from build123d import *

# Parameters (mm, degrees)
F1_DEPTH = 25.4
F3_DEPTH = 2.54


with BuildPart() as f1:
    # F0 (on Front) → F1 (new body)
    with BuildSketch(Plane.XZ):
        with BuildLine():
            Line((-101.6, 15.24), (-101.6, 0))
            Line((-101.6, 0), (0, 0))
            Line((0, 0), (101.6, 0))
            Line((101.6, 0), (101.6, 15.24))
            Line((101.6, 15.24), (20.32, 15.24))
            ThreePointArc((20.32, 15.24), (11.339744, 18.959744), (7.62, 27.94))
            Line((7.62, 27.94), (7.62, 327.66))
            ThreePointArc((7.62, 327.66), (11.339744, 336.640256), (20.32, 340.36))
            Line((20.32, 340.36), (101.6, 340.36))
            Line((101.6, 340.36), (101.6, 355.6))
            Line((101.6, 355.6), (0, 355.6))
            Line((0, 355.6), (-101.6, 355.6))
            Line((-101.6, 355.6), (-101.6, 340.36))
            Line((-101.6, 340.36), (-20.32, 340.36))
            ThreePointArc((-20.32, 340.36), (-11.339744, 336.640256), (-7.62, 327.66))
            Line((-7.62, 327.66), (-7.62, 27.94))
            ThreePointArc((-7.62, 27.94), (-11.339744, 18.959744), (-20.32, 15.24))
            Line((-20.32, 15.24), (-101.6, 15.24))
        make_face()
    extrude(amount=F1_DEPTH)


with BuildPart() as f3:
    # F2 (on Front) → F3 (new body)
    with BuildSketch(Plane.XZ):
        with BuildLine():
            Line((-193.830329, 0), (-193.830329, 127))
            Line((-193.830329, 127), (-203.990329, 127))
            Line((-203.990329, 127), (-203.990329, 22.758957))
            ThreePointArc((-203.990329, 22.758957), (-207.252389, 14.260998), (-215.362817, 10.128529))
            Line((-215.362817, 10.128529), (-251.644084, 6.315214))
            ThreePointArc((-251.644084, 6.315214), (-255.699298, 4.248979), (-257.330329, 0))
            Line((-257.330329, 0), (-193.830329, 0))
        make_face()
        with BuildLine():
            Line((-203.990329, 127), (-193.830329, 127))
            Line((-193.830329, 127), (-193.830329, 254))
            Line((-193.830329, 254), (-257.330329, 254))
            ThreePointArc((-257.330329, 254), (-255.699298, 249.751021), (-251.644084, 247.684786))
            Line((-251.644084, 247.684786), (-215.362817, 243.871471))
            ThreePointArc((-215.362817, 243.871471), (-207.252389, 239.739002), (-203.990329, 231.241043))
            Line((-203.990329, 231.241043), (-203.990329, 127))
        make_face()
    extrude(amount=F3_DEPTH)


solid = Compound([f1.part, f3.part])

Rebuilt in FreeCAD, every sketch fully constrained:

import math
import FreeCAD as App
import Part
import Sketcher
Q = App.Units.Quantity

doc = App.newDocument("Part")
params = doc.addObject("Spreadsheet::Sheet", "Params")
for row, (alias, value) in enumerate([
    ("sketch1_radius", "0.5 in"),
    ("sketch1_width", "8 in"),
    ("sketch1_width2", "3.2 in"),
    ("sketch1_height", "0.6 in"),
    ("sketch1_height2", "11.8 in"),
    ("pad1_length", "1 in"),
    ("sketch2_radius", "0.4999999 in"),
    ("sketch2_height", "10 in"),
    ("sketch2_radius2", "0.2500001 in"),
    ("sketch2_width", "2.5 in"),
    ("pad2_length", "0.1 in"),
], start=1):
    params.set(f"A{row}", alias)
    params.set(f"B{row}", "=" + value)
    params.setAlias(f"B{row}", alias)

body = doc.addObject("PartDesign::Body", "Body")

sketch1 = doc.addObject("Sketcher::SketchObject", "Sketch")
body.addObject(sketch1)
sketch1.AttachmentSupport = (doc.XZ_Plane, [""])
sketch1.MapMode = "FlatFace"
sketch1.addGeometry(Part.LineSegment(App.Vector(-102, 15, 0), App.Vector(-102, 0, 0)), False)
sketch1.addGeometry(Part.LineSegment(App.Vector(-102, 0, 0), App.Vector(102, 0, 0)), False)
sketch1.addGeometry(Part.LineSegment(App.Vector(102, 0, 0), App.Vector(102, 15, 0)), False)
sketch1.addGeometry(Part.LineSegment(App.Vector(102, 15, 0), App.Vector(20, 15, 0)), False)
sketch1.addGeometry(Part.ArcOfCircle(Part.Circle(App.Vector(20, 28, 0), App.Vector(0, 0, 1), 13), math.radians(-180), math.radians(-90)), False)
sketch1.addGeometry(Part.LineSegment(App.Vector(8, 28, 0), App.Vector(8, 328, 0)), False)
sketch1.addGeometry(Part.ArcOfCircle(Part.Circle(App.Vector(20, 328, 0), App.Vector(0, 0, 1), 13), math.radians(90), math.radians(180)), False)
sketch1.addGeometry(Part.LineSegment(App.Vector(20, 340, 0), App.Vector(102, 340, 0)), False)
sketch1.addGeometry(Part.LineSegment(App.Vector(102, 340, 0), App.Vector(102, 356, 0)), False)
sketch1.addGeometry(Part.LineSegment(App.Vector(102, 356, 0), App.Vector(-102, 356, 0)), False)
sketch1.addGeometry(Part.LineSegment(App.Vector(-102, 356, 0), App.Vector(-102, 340, 0)), False)
sketch1.addGeometry(Part.LineSegment(App.Vector(-102, 340, 0), App.Vector(-20, 340, 0)), False)
sketch1.addGeometry(Part.ArcOfCircle(Part.Circle(App.Vector(-20, 328, 0), App.Vector(0, 0, 1), 13), math.radians(0), math.radians(90)), False)
sketch1.addGeometry(Part.LineSegment(App.Vector(-8, 328, 0), App.Vector(-8, 28, 0)), False)
sketch1.addGeometry(Part.ArcOfCircle(Part.Circle(App.Vector(-20, 28, 0), App.Vector(0, 0, 1), 13), math.radians(-90), math.radians(0)), False)
sketch1.addGeometry(Part.LineSegment(App.Vector(-20, 15, 0), App.Vector(-102, 15, 0)), False)
sketch1.addConstraint(Sketcher.Constraint("Coincident", 0, 2, 1, 1))
sketch1.addConstraint(Sketcher.Constraint("Coincident", 1, 2, 2, 1))
sketch1.addConstraint(Sketcher.Constraint("Coincident", 2, 2, 3, 1))
sketch1.addConstraint(Sketcher.Constraint("Tangent", 3, 2, 4, 2))
sketch1.addConstraint(Sketcher.Constraint("Tangent", 4, 1, 5, 1))
sketch1.addConstraint(Sketcher.Constraint("Tangent", 5, 2, 6, 2))
sketch1.addConstraint(Sketcher.Constraint("Tangent", 6, 1, 7, 1))
sketch1.addConstraint(Sketcher.Constraint("Coincident", 7, 2, 8, 1))
sketch1.addConstraint(Sketcher.Constraint("Coincident", 8, 2, 9, 1))
sketch1.addConstraint(Sketcher.Constraint("Coincident", 9, 2, 10, 1))
sketch1.addConstraint(Sketcher.Constraint("Coincident", 10, 2, 11, 1))
sketch1.addConstraint(Sketcher.Constraint("Tangent", 11, 2, 12, 2))
sketch1.addConstraint(Sketcher.Constraint("Tangent", 12, 1, 13, 1))
sketch1.addConstraint(Sketcher.Constraint("Tangent", 13, 2, 14, 2))
sketch1.addConstraint(Sketcher.Constraint("Tangent", 14, 1, 15, 1))
sketch1.addConstraint(Sketcher.Constraint("Coincident", 15, 2, 0, 1))
sketch1.addConstraint(Sketcher.Constraint("Vertical", 0))
sketch1.addConstraint(Sketcher.Constraint("Horizontal", 1))
sketch1.addConstraint(Sketcher.Constraint("Vertical", 2))
sketch1.addConstraint(Sketcher.Constraint("Horizontal", 3))
sketch1.addConstraint(Sketcher.Constraint("Vertical", 5))
sketch1.addConstraint(Sketcher.Constraint("Horizontal", 7))
sketch1.addConstraint(Sketcher.Constraint("Vertical", 8))
sketch1.addConstraint(Sketcher.Constraint("Horizontal", 9))
sketch1.addConstraint(Sketcher.Constraint("Vertical", 10))
sketch1.addConstraint(Sketcher.Constraint("Horizontal", 11))
sketch1.addConstraint(Sketcher.Constraint("Vertical", 13))
sketch1.addConstraint(Sketcher.Constraint("Horizontal", 15))
sketch1.addConstraint(Sketcher.Constraint("Equal", 4, 6))
sketch1.addConstraint(Sketcher.Constraint("Equal", 6, 12))
sketch1.addConstraint(Sketcher.Constraint("Equal", 12, 14))
sketch1.addConstraint(Sketcher.Constraint("Symmetric", 0, 2, 1, 2, -1, 1))
sketch1.addConstraint(Sketcher.Constraint("Symmetric", 6, 3, 12, 3, -2))
sketch1.addConstraint(Sketcher.Constraint("Horizontal", 4, 3, 14, 3))
sketch1.addConstraint(Sketcher.Constraint("Vertical", 2, 2, 7, 2))
sketch1.addConstraint(Sketcher.Constraint("Vertical", 0, 2, 9, 2))
sketch1.addConstraint(Sketcher.Constraint("Equal", 2, 8))
sketch1.addConstraint(Sketcher.Constraint("Radius", 4, Q("0.5 in")))
sketch1.addConstraint(Sketcher.Constraint("DistanceX", 1, 1, 1, 2, Q("8 in")))
sketch1.addConstraint(Sketcher.Constraint("DistanceX", 3, 2, 3, 1, Q("3.2 in")))
sketch1.addConstraint(Sketcher.Constraint("DistanceY", 0, 2, 0, 1, Q("0.6 in")))
sketch1.addConstraint(Sketcher.Constraint("DistanceY", 5, 1, 5, 2, Q("11.8 in")))
sketch1.setExpression("Constraints[37]", "Params.sketch1_radius")
sketch1.setExpression("Constraints[38]", "Params.sketch1_width")
sketch1.setExpression("Constraints[39]", "Params.sketch1_width2")
sketch1.setExpression("Constraints[40]", "Params.sketch1_height")
sketch1.setExpression("Constraints[41]", "Params.sketch1_height2")
pad1 = doc.addObject("PartDesign::Pad", "Pad")
body.addObject(pad1)
pad1.Profile = sketch1
pad1.setExpression("Length", "Params.pad1_length")
body2 = doc.addObject("PartDesign::Body", "Body001")

sketch2 = doc.addObject("Sketcher::SketchObject", "Sketch001")
body2.addObject(sketch2)
sketch2.AttachmentSupport = (doc.getObject("XZ_Plane001"), [""])
sketch2.MapMode = "FlatFace"
sketch2.addGeometry(Part.LineSegment(App.Vector(-194, 0, 0), App.Vector(-194, 254, 0)), False)
sketch2.addGeometry(Part.LineSegment(App.Vector(-194, 254, 0), App.Vector(-257, 254, 0)), False)
sketch2.addGeometry(Part.ArcOfCircle(Part.Circle(App.Vector(-251, 254, 0), App.Vector(0, 0, 1), 6), math.radians(-180), math.radians(-96)), False)
sketch2.addGeometry(Part.LineSegment(App.Vector(-252, 248, 0), App.Vector(-215, 244, 0)), False)
sketch2.addGeometry(Part.ArcOfCircle(Part.Circle(App.Vector(-217, 231, 0), App.Vector(0, 0, 1), 13), math.radians(0), math.radians(84)), False)
sketch2.addGeometry(Part.LineSegment(App.Vector(-204, 231, 0), App.Vector(-204, 23, 0)), False)
sketch2.addGeometry(Part.ArcOfCircle(Part.Circle(App.Vector(-217, 23, 0), App.Vector(0, 0, 1), 13), math.radians(-84), math.radians(0)), False)
sketch2.addGeometry(Part.LineSegment(App.Vector(-215, 10, 0), App.Vector(-252, 6, 0)), False)
sketch2.addGeometry(Part.ArcOfCircle(Part.Circle(App.Vector(-251, 0, 0), App.Vector(0, 0, 1), 6), math.radians(96), math.radians(180)), False)
sketch2.addGeometry(Part.LineSegment(App.Vector(-257, 0, 0), App.Vector(-194, 0, 0)), False)
sketch2.addConstraint(Sketcher.Constraint("Coincident", 0, 2, 1, 1))
sketch2.addConstraint(Sketcher.Constraint("Coincident", 1, 2, 2, 1))
sketch2.addConstraint(Sketcher.Constraint("Tangent", 2, 2, 3, 1))
sketch2.addConstraint(Sketcher.Constraint("Tangent", 3, 2, 4, 2))
sketch2.addConstraint(Sketcher.Constraint("Tangent", 4, 1, 5, 1))
sketch2.addConstraint(Sketcher.Constraint("Tangent", 5, 2, 6, 2))
sketch2.addConstraint(Sketcher.Constraint("Tangent", 6, 1, 7, 1))
sketch2.addConstraint(Sketcher.Constraint("Tangent", 7, 2, 8, 1))
sketch2.addConstraint(Sketcher.Constraint("Coincident", 8, 2, 9, 1))
sketch2.addConstraint(Sketcher.Constraint("Coincident", 9, 2, 0, 1))
sketch2.addConstraint(Sketcher.Constraint("Vertical", 0))
sketch2.addConstraint(Sketcher.Constraint("Horizontal", 1))
sketch2.addConstraint(Sketcher.Constraint("Vertical", 5))
sketch2.addConstraint(Sketcher.Constraint("Horizontal", 9))
sketch2.addConstraint(Sketcher.Constraint("Equal", 4, 6))
sketch2.addConstraint(Sketcher.Constraint("Equal", 2, 8))
sketch2.addConstraint(Sketcher.Constraint("PointOnObject", 8, 3, -1))
sketch2.addConstraint(Sketcher.Constraint("PointOnObject", 8, 2, -1))
sketch2.addConstraint(Sketcher.Constraint("Horizontal", 2, 3, 0, 2))
sketch2.addConstraint(Sketcher.Constraint("Vertical", 2, 3, 8, 3))
sketch2.addConstraint(Sketcher.Constraint("Vertical", 3, 2, 6, 1))
sketch2.addConstraint(Sketcher.Constraint("Radius", 4, Q("0.4999999 in")))
sketch2.addConstraint(Sketcher.Constraint("DistanceY", 0, 1, 0, 2, Q("10 in")))
sketch2.addConstraint(Sketcher.Constraint("Radius", 2, Q("0.2500001 in")))
sketch2.addConstraint(Sketcher.Constraint("DistanceX", 1, 2, 1, 1, Q("2.5 in")))
sketch2.addConstraint(Sketcher.Constraint("Angle", 3, Q("-6 deg")))
sketch2.addConstraint(Sketcher.Constraint("DistanceX", 4, 3, 0, 2, Q("0.8999999 in")))
sketch2.addConstraint(Sketcher.Constraint("DistanceX", 0, 2, -1, 1, Q("193.830329 mm")))
sketch2.setExpression("Constraints[21]", "Params.sketch2_radius")
sketch2.setExpression("Constraints[22]", "Params.sketch2_height")
sketch2.setExpression("Constraints[23]", "Params.sketch2_radius2")
sketch2.setExpression("Constraints[24]", "Params.sketch2_width")
pad2 = doc.addObject("PartDesign::Pad", "Pad001")
body2.addObject(pad2)
pad2.Profile = sketch2
pad2.setExpression("Length", "Params.pad2_length")

doc.recompute()
